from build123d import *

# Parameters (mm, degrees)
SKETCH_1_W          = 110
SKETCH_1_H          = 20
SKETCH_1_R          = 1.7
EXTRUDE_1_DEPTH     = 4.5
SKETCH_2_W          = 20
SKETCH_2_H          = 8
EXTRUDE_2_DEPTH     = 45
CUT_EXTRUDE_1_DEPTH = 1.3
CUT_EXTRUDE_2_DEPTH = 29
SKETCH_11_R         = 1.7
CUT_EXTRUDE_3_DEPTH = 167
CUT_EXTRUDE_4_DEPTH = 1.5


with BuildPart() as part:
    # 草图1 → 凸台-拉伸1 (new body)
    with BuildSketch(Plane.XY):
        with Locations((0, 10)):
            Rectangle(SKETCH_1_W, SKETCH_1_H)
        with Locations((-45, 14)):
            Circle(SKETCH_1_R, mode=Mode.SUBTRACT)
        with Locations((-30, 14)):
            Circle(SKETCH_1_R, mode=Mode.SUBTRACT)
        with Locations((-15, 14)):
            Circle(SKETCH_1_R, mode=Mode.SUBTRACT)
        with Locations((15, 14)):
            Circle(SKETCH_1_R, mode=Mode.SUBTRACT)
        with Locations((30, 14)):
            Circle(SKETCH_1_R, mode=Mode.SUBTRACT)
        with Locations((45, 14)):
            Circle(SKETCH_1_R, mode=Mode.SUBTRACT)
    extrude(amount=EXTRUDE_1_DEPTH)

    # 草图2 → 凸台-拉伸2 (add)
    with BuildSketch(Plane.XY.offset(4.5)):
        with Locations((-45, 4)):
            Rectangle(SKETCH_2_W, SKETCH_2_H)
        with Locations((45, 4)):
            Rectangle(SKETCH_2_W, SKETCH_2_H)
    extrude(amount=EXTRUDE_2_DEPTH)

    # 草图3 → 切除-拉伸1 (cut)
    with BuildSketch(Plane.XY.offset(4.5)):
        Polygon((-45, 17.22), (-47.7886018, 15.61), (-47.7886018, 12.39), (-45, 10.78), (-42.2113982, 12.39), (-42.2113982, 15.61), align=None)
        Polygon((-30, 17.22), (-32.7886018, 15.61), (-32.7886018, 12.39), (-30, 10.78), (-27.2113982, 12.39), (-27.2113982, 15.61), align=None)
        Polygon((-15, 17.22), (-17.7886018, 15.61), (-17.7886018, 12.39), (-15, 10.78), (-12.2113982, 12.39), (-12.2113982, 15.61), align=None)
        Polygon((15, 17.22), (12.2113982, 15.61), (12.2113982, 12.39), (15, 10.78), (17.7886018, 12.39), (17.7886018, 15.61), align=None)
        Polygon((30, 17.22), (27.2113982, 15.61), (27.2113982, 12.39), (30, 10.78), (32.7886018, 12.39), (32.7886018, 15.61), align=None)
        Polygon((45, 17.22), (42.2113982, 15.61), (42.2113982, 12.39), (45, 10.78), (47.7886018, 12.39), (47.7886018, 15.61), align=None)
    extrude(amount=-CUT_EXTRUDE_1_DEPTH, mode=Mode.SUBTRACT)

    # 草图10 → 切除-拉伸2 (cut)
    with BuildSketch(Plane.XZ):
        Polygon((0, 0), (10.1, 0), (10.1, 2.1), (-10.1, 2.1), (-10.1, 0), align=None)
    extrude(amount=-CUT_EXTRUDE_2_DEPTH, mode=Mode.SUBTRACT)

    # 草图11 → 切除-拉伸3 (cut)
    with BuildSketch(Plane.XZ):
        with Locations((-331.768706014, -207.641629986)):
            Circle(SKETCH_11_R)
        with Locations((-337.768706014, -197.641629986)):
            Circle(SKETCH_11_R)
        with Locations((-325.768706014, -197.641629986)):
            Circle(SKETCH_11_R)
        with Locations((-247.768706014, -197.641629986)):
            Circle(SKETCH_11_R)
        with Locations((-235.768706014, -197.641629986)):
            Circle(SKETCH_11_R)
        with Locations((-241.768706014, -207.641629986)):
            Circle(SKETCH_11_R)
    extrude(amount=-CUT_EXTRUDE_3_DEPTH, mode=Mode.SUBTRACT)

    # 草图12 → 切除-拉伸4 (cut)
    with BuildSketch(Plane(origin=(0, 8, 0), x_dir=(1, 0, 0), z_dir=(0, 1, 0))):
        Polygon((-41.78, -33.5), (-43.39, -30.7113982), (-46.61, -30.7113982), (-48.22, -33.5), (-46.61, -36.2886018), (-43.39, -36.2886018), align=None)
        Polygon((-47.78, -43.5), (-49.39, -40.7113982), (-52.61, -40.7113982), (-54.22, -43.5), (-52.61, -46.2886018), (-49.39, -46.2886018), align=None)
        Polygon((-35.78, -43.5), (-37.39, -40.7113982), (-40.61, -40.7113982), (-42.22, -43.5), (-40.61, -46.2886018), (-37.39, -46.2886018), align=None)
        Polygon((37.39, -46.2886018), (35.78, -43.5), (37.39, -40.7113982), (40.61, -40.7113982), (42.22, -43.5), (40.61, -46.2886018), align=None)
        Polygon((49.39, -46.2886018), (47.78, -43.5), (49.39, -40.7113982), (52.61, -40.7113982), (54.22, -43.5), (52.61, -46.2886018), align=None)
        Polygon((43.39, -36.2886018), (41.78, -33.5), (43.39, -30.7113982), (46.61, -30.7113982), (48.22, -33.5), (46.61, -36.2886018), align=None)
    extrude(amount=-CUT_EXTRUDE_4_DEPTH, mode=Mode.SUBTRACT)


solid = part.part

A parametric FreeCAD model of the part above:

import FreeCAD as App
import Part
import Sketcher
Q = App.Units.Quantity

doc = App.newDocument("Part")
body = doc.addObject("PartDesign::Body", "Body")

# Sketch on XY plane
sketch1 = body.newObject("Sketcher::SketchObject", "Sketch")
sketch1.AttachmentSupport = (doc.getObject("XY_Plane"), [""])
sketch1.MapMode = "FlatFace"
sketch1.addGeometry([
    Part.LineSegment(App.Vector(-55, 20, 0), App.Vector(-55, 0, 0)),  # 0
    Part.LineSegment(App.Vector(-55, 0, 0), App.Vector(55, 0, 0)),  # 1
    Part.LineSegment(App.Vector(55, 0, 0), App.Vector(55, 20, 0)),  # 2
    Part.LineSegment(App.Vector(55, 20, 0), App.Vector(-55, 20, 0)),  # 3
    Part.Circle(App.Vector(-45, 14, 0), App.Vector(0, 0, 1), 1.7),  # 4
    Part.Circle(App.Vector(-30, 14, 0), App.Vector(0, 0, 1), 1.7),  # 5
    Part.Circle(App.Vector(-15, 14, 0), App.Vector(0, 0, 1), 1.7),  # 6
    Part.Circle(App.Vector(15, 14, 0), App.Vector(0, 0, 1), 1.7),  # 7
    Part.Circle(App.Vector(30, 14, 0), App.Vector(0, 0, 1), 1.7),  # 8
    Part.Circle(App.Vector(45, 14, 0), App.Vector(0, 0, 1), 1.7),  # 9
], False)
sketch1.addConstraint([
    Sketcher.Constraint("Coincident", 0, 2, 1, 1),
    Sketcher.Constraint("Coincident", 1, 2, 2, 1),
    Sketcher.Constraint("Coincident", 2, 2, 3, 1),
    Sketcher.Constraint("Coincident", 3, 2, 0, 1),
    Sketcher.Constraint("Vertical", 0),
    Sketcher.Constraint("Horizontal", 1),
    Sketcher.Constraint("Vertical", 2),
    Sketcher.Constraint("Horizontal", 3),
    Sketcher.Constraint("Equal", 4, 5),
    Sketcher.Constraint("Equal", 5, 6),
    Sketcher.Constraint("Equal", 6, 7),
    Sketcher.Constraint("Equal", 7, 8),
    Sketcher.Constraint("Equal", 8, 9),
    Sketcher.Constraint("Symmetric", 0, 2, 1, 2, -1, 1),
    Sketcher.Constraint("Symmetric", 6, 3, 7, 3, -2),
    Sketcher.Constraint("Symmetric", 5, 3, 8, 3, -2),
    Sketcher.Constraint("Symmetric", 4, 3, 9, 3, -2),
    Sketcher.Constraint("Horizontal", 4, 3, 5, 3),
    Sketcher.Constraint("Horizontal", 5, 3, 6, 3),
    Sketcher.Constraint("Diameter", 4, 3.4),
    Sketcher.Constraint("DistanceX", 1, 1, 1, 2, 110.0),
    Sketcher.Constraint("DistanceY", 0, 2, 0, 1, 20.0),
    Sketcher.Constraint("DistanceX", 4, 3, -1, 1, 45.0),
    Sketcher.Constraint("DistanceY", -1, 1, 4, 3, 14.0),
    Sketcher.Constraint("DistanceX", 5, 3, -1, 1, 30.0),
    Sketcher.Constraint("DistanceX", 6, 3, -1, 1, 15.0),
])
pad1 = body.newObject("PartDesign::Pad", "Pad")
pad1.Profile = sketch1
pad1.Length = 4.5

# Sketch on XY plane
sketch2 = body.newObject("Sketcher::SketchObject", "Sketch001")
sketch2.AttachmentSupport = (doc.getObject("XY_Plane"), [""])
sketch2.MapMode = "FlatFace"
sketch2.AttachmentOffset = App.Placement(App.Vector(0, 0, 4.5), App.Rotation())
sketch2.addGeometry([
    Part.LineSegment(App.Vector(-55, 8, 0), App.Vector(-55, 0, 0)),  # 0
    Part.LineSegment(App.Vector(-55, 0, 0), App.Vector(-35, 0, 0)),  # 1
    Part.LineSegment(App.Vector(-35, 0, 0), App.Vector(-35, 8, 0)),  # 2
    Part.LineSegment(App.Vector(-35, 8, 0), App.Vector(-55, 8, 0)),  # 3
    Part.LineSegment(App.Vector(35, 8, 0), App.Vector(35, 0, 0)),  # 4
    Part.LineSegment(App.Vector(35, 0, 0), App.Vector(55, 0, 0)),  # 5
    Part.LineSegment(App.Vector(55, 0, 0), App.Vector(55, 8, 0)),  # 6
    Part.LineSegment(App.Vector(55, 8, 0), App.Vector(35, 8, 0)),  # 7
], False)
sketch2.addConstraint([
    Sketcher.Constraint("Coincident", 0, 2, 1, 1),
    Sketcher.Constraint("Coincident", 1, 2, 2, 1),
    Sketcher.Constraint("Coincident", 2, 2, 3, 1),
    Sketcher.Constraint("Coincident", 3, 2, 0, 1),
    Sketcher.Constraint("Coincident", 4, 2, 5, 1),
    Sketcher.Constraint("Coincident", 5, 2, 6, 1),
    Sketcher.Constraint("Coincident", 6, 2, 7, 1),
    Sketcher.Constraint("Coincident", 7, 2, 4, 1),
    Sketcher.Constraint("Vertical", 0),
    Sketcher.Constraint("Horizontal", 1),
    Sketcher.Constraint("Vertical", 2),
    Sketcher.Constraint("Horizontal", 3),
    Sketcher.Constraint("Vertical", 4),
    Sketcher.Constraint("Horizontal", 5),
    Sketcher.Constraint("Vertical", 6),
    Sketcher.Constraint("Horizontal", 7),
    Sketcher.Constraint("Symmetric", 1, 2, 4, 2, -1, 1),
    Sketcher.Constraint("Symmetric", 0, 2, 5, 2, -2),
    Sketcher.Constraint("Horizontal", 3, 2, 6, 2),
    Sketcher.Constraint("DistanceX", 1, 1, 1, 2, 20.0),
    Sketcher.Constraint("DistanceY", 0, 2, 0, 1, 8.0),
    Sketcher.Constraint("DistanceX", 0, 2, -1, 1, 55.0),
])
pad2 = body.newObject("PartDesign::Pad", "Pad001")
pad2.Profile = sketch2
pad2.Length = 45

# Sketch on XY plane
sketch3 = body.newObject("Sketcher::SketchObject", "Sketch002")
sketch3.AttachmentSupport = (doc.getObject("XY_Plane"), [""])
sketch3.MapMode = "FlatFace"
sketch3.AttachmentOffset = App.Placement(App.Vector(0, 0, 4.5), App.Rotation())
sketch3.addGeometry([
    Part.LineSegment(App.Vector(-45, 17.2, 0), App.Vector(-47.8, 15.6, 0)),  # 0
    Part.LineSegment(App.Vector(-47.8, 15.6, 0), App.Vector(-47.8, 12.4, 0)),  # 1
    Part.LineSegment(App.Vector(-47.8, 12.4, 0), App.Vector(-45, 10.8, 0)),  # 2
    Part.LineSegment(App.Vector(-45, 10.8, 0), App.Vector(-42.2, 12.4, 0)),  # 3
    Part.LineSegment(App.Vector(-42.2, 12.4, 0), App.Vector(-42.2, 15.6, 0)),  # 4
    Part.LineSegment(App.Vector(-42.2, 15.6, 0), App.Vector(-45, 17.2, 0)),  # 5
    Part.LineSegment(App.Vector(-30, 17.2, 0), App.Vector(-32.8, 15.6, 0)),  # 6
    Part.LineSegment(App.Vector(-32.8, 15.6, 0), App.Vector(-32.8, 12.4, 0)),  # 7
    Part.LineSegment(App.Vector(-32.8, 12.4, 0), App.Vector(-30, 10.8, 0)),  # 8
    Part.LineSegment(App.Vector(-30, 10.8, 0), App.Vector(-27.2, 12.4, 0)),  # 9
    Part.LineSegment(App.Vector(-27.2, 12.4, 0), App.Vector(-27.2, 15.6, 0)),  # 10
    Part.LineSegment(App.Vector(-27.2, 15.6, 0), App.Vector(-30, 17.2, 0)),  # 11
    Part.LineSegment(App.Vector(-15, 17.2, 0), App.Vector(-17.8, 15.6, 0)),  # 12
    Part.LineSegment(App.Vector(-17.8, 15.6, 0), App.Vector(-17.8, 12.4, 0)),  # 13
    Part.LineSegment(App.Vector(-17.8, 12.4, 0), App.Vector(-15, 10.8, 0)),  # 14
    Part.LineSegment(App.Vector(-15, 10.8, 0), App.Vector(-12.2, 12.4, 0)),  # 15
    Part.LineSegment(App.Vector(-12.2, 12.4, 0), App.Vector(-12.2, 15.6, 0)),  # 16
    Part.LineSegment(App.Vector(-12.2, 15.6, 0), App.Vector(-15, 17.2, 0)),  # 17
    Part.LineSegment(App.Vector(15, 17.2, 0), App.Vector(12.2, 15.6, 0)),  # 18
    Part.LineSegment(App.Vector(12.2, 15.6, 0), App.Vector(12.2, 12.4, 0)),  # 19
    Part.LineSegment(App.Vector(12.2, 12.4, 0), App.Vector(15, 10.8, 0)),  # 20
    Part.LineSegment(App.Vector(15, 10.8, 0), App.Vector(17.8, 12.4, 0)),  # 21
    Part.LineSegment(App.Vector(17.8, 12.4, 0), App.Vector(17.8, 15.6, 0)),  # 22
    Part.LineSegment(App.Vector(17.8, 15.6, 0), App.Vector(15, 17.2, 0)),  # 23
    Part.LineSegment(App.Vector(30, 17.2, 0), App.Vector(27.2, 15.6, 0)),  # 24
    Part.LineSegment(App.Vector(27.2, 15.6, 0), App.Vector(27.2, 12.4, 0)),  # 25
    Part.LineSegment(App.Vector(27.2, 12.4, 0), App.Vector(30, 10.8, 0)),  # 26
    Part.LineSegment(App.Vector(30, 10.8, 0), App.Vector(32.8, 12.4, 0)),  # 27
    Part.LineSegment(App.Vector(32.8, 12.4, 0), App.Vector(32.8, 15.6, 0)),  # 28
    Part.LineSegment(App.Vector(32.8, 15.6, 0), App.Vector(30, 17.2, 0)),  # 29
    Part.LineSegment(App.Vector(45, 17.2, 0), App.Vector(42.2, 15.6, 0)),  # 30
    Part.LineSegment(App.Vector(42.2, 15.6, 0), App.Vector(42.2, 12.4, 0)),  # 31
    Part.LineSegment(App.Vector(42.2, 12.4, 0), App.Vector(45, 10.8, 0)),  # 32
    Part.LineSegment(App.Vector(45, 10.8, 0), App.Vector(47.8, 12.4, 0)),  # 33
    Part.LineSegment(App.Vector(47.8, 12.4, 0), App.Vector(47.8, 15.6, 0)),  # 34
    Part.LineSegment(App.Vector(47.8, 15.6, 0), App.Vector(45, 17.2, 0)),  # 35
], False)
sketch3.addConstraint([
    Sketcher.Constraint("Coincident", 0, 2, 1, 1),
    Sketcher.Constraint("Coincident", 1, 2, 2, 1),
    Sketcher.Constraint("Coincident", 2, 2, 3, 1),
    Sketcher.Constraint("Coincident", 3, 2, 4, 1),
    Sketcher.Constraint("Coincident", 4, 2, 5, 1),
    Sketcher.Constraint("Coincident", 5, 2, 0, 1),
    Sketcher.Constraint("Coincident", 6, 2, 7, 1),
    Sketcher.Constraint("Coincident", 7, 2, 8, 1),
    Sketcher.Constraint("Coincident", 8, 2, 9, 1),
    Sketcher.Constraint("Coincident", 9, 2, 10, 1),
    Sketcher.Constraint("Coincident", 10, 2, 11, 1),
    Sketcher.Constraint("Coincident", 11, 2, 6, 1),
    Sketcher.Constraint("Coincident", 12, 2, 13, 1),
    Sketcher.Constraint("Coincident", 13, 2, 14, 1),
    Sketcher.Constraint("Coincident", 14, 2, 15, 1),
    Sketcher.Constraint("Coincident", 15, 2, 16, 1),
    Sketcher.Constraint("Coincident", 16, 2, 17, 1),
    Sketcher.Constraint("Coincident", 17, 2, 12, 1),
    Sketcher.Constraint("Coincident", 18, 2, 19, 1),
    Sketcher.Constraint("Coincident", 19, 2, 20, 1),
    Sketcher.Constraint("Coincident", 20, 2, 21, 1),
    Sketcher.Constraint("Coincident", 21, 2, 22, 1),
    Sketcher.Constraint("Coincident", 22, 2, 23, 1),
    Sketcher.Constraint("Coincident", 23, 2, 18, 1),
    Sketcher.Constraint("Coincident", 24, 2, 25, 1),
    Sketcher.Constraint("Coincident", 25, 2, 26, 1),
    Sketcher.Constraint("Coincident", 26, 2, 27, 1),
    Sketcher.Constraint("Coincident", 27, 2, 28, 1),
    Sketcher.Constraint("Coincident", 28, 2, 29, 1),
    Sketcher.Constraint("Coincident", 29, 2, 24, 1),
    Sketcher.Constraint("Coincident", 30, 2, 31, 1),
    Sketcher.Constraint("Coincident", 31, 2, 32, 1),
    Sketcher.Constraint("Coincident", 32, 2, 33, 1),
    Sketcher.Constraint("Coincident", 33, 2, 34, 1),
    Sketcher.Constraint("Coincident", 34, 2, 35, 1),
    Sketcher.Constraint("Coincident", 35, 2, 30, 1),
    Sketcher.Constraint("Vertical", 1),
    Sketcher.Constraint("Vertical", 4),
    Sketcher.Constraint("Vertical", 7),
    Sketcher.Constraint("Vertical", 10),
    Sketcher.Constraint("Vertical", 13),
    Sketcher.Constraint("Vertical", 16),
    Sketcher.Constraint("Vertical", 19),
    Sketcher.Constraint("Vertical", 22),
    Sketcher.Constraint("Vertical", 25),
    Sketcher.Constraint("Vertical", 28),
    Sketcher.Constraint("Vertical", 31),
    Sketcher.Constraint("Vertical", 34),
    Sketcher.Constraint("Symmetric", 16, 2, 18, 2, -2),
    Sketcher.Constraint("Symmetric", 14, 2, 20, 2, -2),
    Sketcher.Constraint("Symmetric", 13, 2, 21, 2, -2),
    Sketcher.Constraint("Symmetric", 17, 2, 23, 2, -2),
    Sketcher.Constraint("Symmetric", 10, 2, 24, 2, -2),
    Sketcher.Constraint("Symmetric", 8, 2, 26, 2, -2),
    Sketcher.Constraint("Symmetric", 7, 2, 27, 2, -2),
    Sketcher.Constraint("Symmetric", 11, 2, 29, 2, -2),
    Sketcher.Constraint("Symmetric", 4, 2, 30, 2, -2),
    Sketcher.Constraint("Symmetric", 2, 2, 32, 2, -2),
    Sketcher.Constraint("Symmetric", 1, 2, 33, 2, -2),
    Sketcher.Constraint("Symmetric", 5, 2, 35, 2, -2),
    Sketcher.Constraint("Parallel", 0, 3),
    Sketcher.Constraint("Parallel", 2, 5),
    Sketcher.Constraint("Parallel", 3, 6),
    Sketcher.Constraint("Parallel", 5, 8),
    Sketcher.Constraint("Parallel", 6, 9),
    Sketcher.Constraint("Parallel", 8, 11),
    Sketcher.Constraint("Parallel", 9, 12),
    Sketcher.Constraint("Parallel", 11, 14),
    Sketcher.Constraint("Parallel", 12, 15),
    Sketcher.Constraint("Parallel", 14, 17),
    Sketcher.Constraint("Parallel", 15, 18),
    Sketcher.Constraint("Parallel", 17, 20),
    Sketcher.Constraint("Parallel", 20, 23),
    Sketcher.Constraint("Parallel", 23, 26),
    Sketcher.Constraint("Parallel", 26, 29),
    Sketcher.Constraint("Parallel", 29, 32),
    Sketcher.Constraint("Parallel", 32, 35),
    Sketcher.Constraint("Horizontal", 1, 2, 3, 2),
    Sketcher.Constraint("Horizontal", 0, 2, 4, 2),
    Sketcher.Constraint("Horizontal", 4, 2, 6, 2),
    Sketcher.Constraint("Horizontal", 3, 2, 7, 2),
    Sketcher.Constraint("Horizontal", 2, 2, 8, 2),
    Sketcher.Constraint("Horizontal", 7, 2, 9, 2),
    Sketcher.Constraint("Horizontal", 6, 2, 10, 2),
    Sketcher.Constraint("Horizontal", 10, 2, 12, 2),
    Sketcher.Constraint("Horizontal", 9, 2, 13, 2),
    Sketcher.Constraint("Horizontal", 8, 2, 14, 2),
    Sketcher.Constraint("Horizontal", 13, 2, 15, 2),
    Sketcher.Constraint("Horizontal", 12, 2, 16, 2),
    Sketcher.Constraint("Angle", 0, Q("-150 deg")),
    Sketcher.Constraint("DistanceX", 2, 2, -1, 1, 45.0),
    Sketcher.Constraint("DistanceX", 8, 2, -1, 1, 30.0),
    Sketcher.Constraint("DistanceX", 14, 2, -1, 1, 15.0),
    Sketcher.Constraint("DistanceY", 1, 2, 1, 1, 3.22),
    Sketcher.Constraint("Distance", 0, 3.22),
    Sketcher.Constraint("DistanceY", -1, 1, 0, 2, 15.61),
])
pocket1 = body.newObject("PartDesign::Pocket", "Pocket")
pocket1.Profile = sketch3
pocket1.Length = 1.3

# Sketch on XZ plane
sketch4 = body.newObject("Sketcher::SketchObject", "Sketch003")
sketch4.AttachmentSupport = (doc.getObject("XZ_Plane"), [""])
sketch4.MapMode = "FlatFace"
sketch4.addGeometry([
    Part.LineSegment(App.Vector(10.1, 0, 0), App.Vector(10.1, 2.1, 0)),
    Part.LineSegment(App.Vector(10.1, 2.1, 0), App.Vector(-10.1, 2.1, 0)),
    Part.LineSegment(App.Vector(-10.1, 2.1, 0), App.Vector(-10.1, 0, 0)),
    Part.LineSegment(App.Vector(-10.1, 0, 0), App.Vector(10.1, 0, 0)),
], False)
sketch4.addConstraint([
    Sketcher.Constraint("Coincident", 0, 2, 1, 1),
    Sketcher.Constraint("Coincident", 1, 2, 2, 1),
    Sketcher.Constraint("Coincident", 2, 2, 3, 1),
    Sketcher.Constraint("Coincident", 3, 2, 0, 1),
    Sketcher.Constraint("Vertical", 0),
    Sketcher.Constraint("Horizontal", 1),
    Sketcher.Constraint("Vertical", 2),
    Sketcher.Constraint("Horizontal", 3),
    Sketcher.Constraint("Symmetric", 2, 2, 3, 2, -1, 1),
    Sketcher.Constraint("DistanceX", 1, 2, 1, 1, 20.2),
    Sketcher.Constraint("DistanceY", 0, 1, 0, 2, 2.1),
])
pocket2 = body.newObject("PartDesign::Pocket", "Pocket001")
pocket2.Profile = sketch4
pocket2.Length = 29

# Sketch on XZ plane
sketch5 = body.newObject("Sketcher::SketchObject", "Sketch004")
sketch5.AttachmentSupport = (doc.getObject("XZ_Plane"), [""])
sketch5.MapMode = "FlatFace"
sketch5.addGeometry([
    Part.Circle(App.Vector(-331.8, -207.6, 0), App.Vector(0, 0, 1), 1.7),  # 0
    Part.Circle(App.Vector(-337.8, -197.6, 0), App.Vector(0, 0, 1), 1.7),  # 1
    Part.Circle(App.Vector(-325.8, -197.6, 0), App.Vector(0, 0, 1), 1.7),  # 2
    Part.Circle(App.Vector(-247.8, -197.6, 0), App.Vector(0, 0, 1), 1.7),  # 3
    Part.Circle(App.Vector(-235.8, -197.6, 0), App.Vector(0, 0, 1), 1.7),  # 4
    Part.Circle(App.Vector(-241.8, -207.6, 0), App.Vector(0, 0, 1), 1.7),  # 5
], False)
sketch5.addConstraint([
    Sketcher.Constraint("Equal", 0, 1),
    Sketcher.Constraint("Equal", 1, 2),
    Sketcher.Constraint("Equal", 2, 3),
    Sketcher.Constraint("Equal", 3, 4),
    Sketcher.Constraint("Equal", 4, 5),
    Sketcher.Constraint("Horizontal", 1, 3, 2, 3),
    Sketcher.Constraint("Horizontal", 2, 3, 3, 3),
    Sketcher.Constraint("Horizontal", 3, 3, 4, 3),
    Sketcher.Constraint("Horizontal", 0, 3, 5, 3),
    Sketcher.Constraint("Diameter", 0, 3.4),
    Sketcher.Constraint("DistanceX", 1, 3, 0, 3, 6.0),
    Sketcher.Constraint("DistanceY", 0, 3, 1, 3, 10.0),
    Sketcher.Constraint("DistanceX", 0, 3, 2, 3, 6.0),
    Sketcher.Constraint("DistanceX", 2, 3, 3, 3, 78.0),
    Sketcher.Constraint("DistanceX", 3, 3, 4, 3, 12.0),
    Sketcher.Constraint("DistanceX", 3, 3, 5, 3, 6.0),
    Sketcher.Constraint("DistanceY", 0, 3, -1, 1, 207.64163),
    Sketcher.Constraint("DistanceX", 0, 3, -1, 1, 331.768706),
])
pocket3 = body.newObject("PartDesign::Pocket", "Pocket002")
pocket3.Profile = sketch5
pocket3.Length = 167

# Sketch on XZ plane
sketch6 = body.newObject("Sketcher::SketchObject", "Sketch005")
sketch6.AttachmentSupport = (doc.getObject("XZ_Plane"), [""])
sketch6.MapMode = "FlatFace"
sketch6.AttachmentOffset = App.Placement(App.Vector(0, 0, -8), App.Rotation())
sketch6.addGeometry([
    Part.LineSegment(App.Vector(-41.8, 33.5, 0), App.Vector(-43.4, 30.7, 0)),  # 0
    Part.LineSegment(App.Vector(-43.4, 30.7, 0), App.Vector(-46.6, 30.7, 0)),  # 1
    Part.LineSegment(App.Vector(-46.6, 30.7, 0), App.Vector(-48.2, 33.5, 0)),  # 2
    Part.LineSegment(App.Vector(-48.2, 33.5, 0), App.Vector(-46.6, 36.3, 0)),  # 3
    Part.LineSegment(App.Vector(-46.6, 36.3, 0), App.Vector(-43.4, 36.3, 0)),  # 4
    Part.LineSegment(App.Vector(-43.4, 36.3, 0), App.Vector(-41.8, 33.5, 0)),  # 5
    Part.LineSegment(App.Vector(-47.8, 43.5, 0), App.Vector(-49.4, 40.7, 0)),  # 6
    Part.LineSegment(App.Vector(-49.4, 40.7, 0), App.Vector(-52.6, 40.7, 0)),  # 7
    Part.LineSegment(App.Vector(-52.6, 40.7, 0), App.Vector(-54.2, 43.5, 0)),  # 8
    Part.LineSegment(App.Vector(-54.2, 43.5, 0), App.Vector(-52.6, 46.3, 0)),  # 9
    Part.LineSegment(App.Vector(-52.6, 46.3, 0), App.Vector(-49.4, 46.3, 0)),  # 10
    Part.LineSegment(App.Vector(-49.4, 46.3, 0), App.Vector(-47.8, 43.5, 0)),  # 11
    Part.LineSegment(App.Vector(-35.8, 43.5, 0), App.Vector(-37.4, 40.7, 0)),  # 12
    Part.LineSegment(App.Vector(-37.4, 40.7, 0), App.Vector(-40.6, 40.7, 0)),  # 13
    Part.LineSegment(App.Vector(-40.6, 40.7, 0), App.Vector(-42.2, 43.5, 0)),  # 14
    Part.LineSegment(App.Vector(-42.2, 43.5, 0), App.Vector(-40.6, 46.3, 0)),  # 15
    Part.LineSegment(App.Vector(-40.6, 46.3, 0), App.Vector(-37.4, 46.3, 0)),  # 16
    Part.LineSegment(App.Vector(-37.4, 46.3, 0), App.Vector(-35.8, 43.5, 0)),  # 17
    Part.LineSegment(App.Vector(35.8, 43.5, 0), App.Vector(37.4, 46.3, 0)),  # 18
    Part.LineSegment(App.Vector(37.4, 46.3, 0), App.Vector(40.6, 46.3, 0)),  # 19
    Part.LineSegment(App.Vector(40.6, 46.3, 0), App.Vector(42.2, 43.5, 0)),  # 20
    Part.LineSegment(App.Vector(42.2, 43.5, 0), App.Vector(40.6, 40.7, 0)),  # 21
    Part.LineSegment(App.Vector(40.6, 40.7, 0), App.Vector(37.4, 40.7, 0)),  # 22
    Part.LineSegment(App.Vector(37.4, 40.7, 0), App.Vector(35.8, 43.5, 0)),  # 23
    Part.LineSegment(App.Vector(47.8, 43.5, 0), App.Vector(49.4, 46.3, 0)),  # 24
    Part.LineSegment(App.Vector(49.4, 46.3, 0), App.Vector(52.6, 46.3, 0)),  # 25
    Part.LineSegment(App.Vector(52.6, 46.3, 0), App.Vector(54.2, 43.5, 0)),  # 26
    Part.LineSegment(App.Vector(54.2, 43.5, 0), App.Vector(52.6, 40.7, 0)),  # 27
    Part.LineSegment(App.Vector(52.6, 40.7, 0), App.Vector(49.4, 40.7, 0)),  # 28
    Part.LineSegment(App.Vector(49.4, 40.7, 0), App.Vector(47.8, 43.5, 0)),  # 29
    Part.LineSegment(App.Vector(41.8, 33.5, 0), App.Vector(43.4, 36.3, 0)),  # 30
    Part.LineSegment(App.Vector(43.4, 36.3, 0), App.Vector(46.6, 36.3, 0)),  # 31
    Part.LineSegment(App.Vector(46.6, 36.3, 0), App.Vector(48.2, 33.5, 0)),  # 32
    Part.LineSegment(App.Vector(48.2, 33.5, 0), App.Vector(46.6, 30.7, 0)),  # 33
    Part.LineSegment(App.Vector(46.6, 30.7, 0), App.Vector(43.4, 30.7, 0)),  # 34
    Part.LineSegment(App.Vector(43.4, 30.7, 0), App.Vector(41.8, 33.5, 0)),  # 35
], False)
sketch6.addConstraint([
    Sketcher.Constraint("Coincident", 0, 2, 1, 1),
    Sketcher.Constraint("Coincident", 1, 2, 2, 1),
    Sketcher.Constraint("Coincident", 2, 2, 3, 1),
    Sketcher.Constraint("Coincident", 3, 2, 4, 1),
    Sketcher.Constraint("Coincident", 4, 2, 5, 1),
    Sketcher.Constraint("Coincident", 5, 2, 0, 1),
    Sketcher.Constraint("Coincident", 6, 2, 7, 1),
    Sketcher.Constraint("Coincident", 7, 2, 8, 1),
    Sketcher.Constraint("Coincident", 8, 2, 9, 1),
    Sketcher.Constraint("Coincident", 9, 2, 10, 1),
    Sketcher.Constraint("Coincident", 10, 2, 11, 1),
    Sketcher.Constraint("Coincident", 11, 2, 6, 1),
    Sketcher.Constraint("Coincident", 12, 2, 13, 1),
    Sketcher.Constraint("Coincident", 13, 2, 14, 1),
    Sketcher.Constraint("Coincident", 14, 2, 15, 1),
    Sketcher.Constraint("Coincident", 15, 2, 16, 1),
    Sketcher.Constraint("Coincident", 16, 2, 17, 1),
    Sketcher.Constraint("Coincident", 17, 2, 12, 1),
    Sketcher.Constraint("Coincident", 18, 2, 19, 1),
    Sketcher.Constraint("Coincident", 19, 2, 20, 1),
    Sketcher.Constraint("Coincident", 20, 2, 21, 1),
    Sketcher.Constraint("Coincident", 21, 2, 22, 1),
    Sketcher.Constraint("Coincident", 22, 2, 23, 1),
    Sketcher.Constraint("Coincident", 23, 2, 18, 1),
    Sketcher.Constraint("Coincident", 24, 2, 25, 1),
    Sketcher.Constraint("Coincident", 25, 2, 26, 1),
    Sketcher.Constraint("Coincident", 26, 2, 27, 1),
    Sketcher.Constraint("Coincident", 27, 2, 28, 1),
    Sketcher.Constraint("Coincident", 28, 2, 29, 1),
    Sketcher.Constraint("Coincident", 29, 2, 24, 1),
    Sketcher.Constraint("Coincident", 30, 2, 31, 1),
    Sketcher.Constraint("Coincident", 31, 2, 32, 1),
    Sketcher.Constraint("Coincident", 32, 2, 33, 1),
    Sketcher.Constraint("Coincident", 33, 2, 34, 1),
    Sketcher.Constraint("Coincident", 34, 2, 35, 1),
    Sketcher.Constraint("Coincident", 35, 2, 30, 1),
    Sketcher.Constraint("Horizontal", 1),
    Sketcher.Constraint("Horizontal", 4),
    Sketcher.Constraint("Horizontal", 7),
    Sketcher.Constraint("Horizontal", 10),
    Sketcher.Constraint("Horizontal", 13),
    Sketcher.Constraint("Horizontal", 16),
    Sketcher.Constraint("Horizontal", 19),
    Sketcher.Constraint("Horizontal", 22),
    Sketcher.Constraint("Horizontal", 25),
    Sketcher.Constraint("Horizontal", 28),
    Sketcher.Constraint("Horizontal", 31),
    Sketcher.Constraint("Horizontal", 34),
    Sketcher.Constraint("Symmetric", 16, 2, 18, 2, -2),
    Sketcher.Constraint("Symmetric", 14, 2, 20, 2, -2),
    Sketcher.Constraint("Symmetric", 13, 2, 21, 2, -2),
    Sketcher.Constraint("Symmetric", 17, 2, 23, 2, -2),
    Sketcher.Constraint("Symmetric", 10, 2, 24, 2, -2),
    Sketcher.Constraint("Symmetric", 8, 2, 26, 2, -2),
    Sketcher.Constraint("Symmetric", 7, 2, 27, 2, -2),
    Sketcher.Constraint("Symmetric", 11, 2, 29, 2, -2),
    Sketcher.Constraint("Symmetric", 4, 2, 30, 2, -2),
    Sketcher.Constraint("Symmetric", 2, 2, 32, 2, -2),
    Sketcher.Constraint("Symmetric", 1, 2, 33, 2, -2),
    Sketcher.Constraint("Symmetric", 5, 2, 35, 2, -2),
    Sketcher.Constraint("Parallel", 0, 3),
    Sketcher.Constraint("Parallel", 2, 5),
    Sketcher.Constraint("Parallel", 3, 6),
    Sketcher.Constraint("Parallel", 5, 8),
    Sketcher.Constraint("Parallel", 6, 9),
    Sketcher.Constraint("Parallel", 8, 11),
    Sketcher.Constraint("Parallel", 9, 12),
    Sketcher.Constraint("Parallel", 11, 14),
    Sketcher.Constraint("Parallel", 12, 15),
    Sketcher.Constraint("Parallel", 14, 17),
    Sketcher.Constraint("Parallel", 15, 18),
    Sketcher.Constraint("Parallel", 17, 20),
    Sketcher.Constraint("Parallel", 20, 23),
    Sketcher.Constraint("Parallel", 23, 26),
    Sketcher.Constraint("Parallel", 26, 29),
    Sketcher.Constraint("Parallel", 29, 32),
    Sketcher.Constraint("Parallel", 32, 35),
    Sketcher.Constraint("Horizontal", 2, 2, 5, 2),
    Sketcher.Constraint("Horizontal", 8, 2, 11, 2),
    Sketcher.Constraint("Horizontal", 7, 2, 12, 2),
    Sketcher.Constraint("Horizontal", 11, 2, 14, 2),
    Sketcher.Constraint("Horizontal", 10, 2, 15, 2),
    Sketcher.Constraint("Horizontal", 14, 2, 17, 2),
    Sketcher.Constraint("Vertical", 1, 2, 3, 2),
    Sketcher.Constraint("Vertical", 7, 2, 9, 2),
    Sketcher.Constraint("Equal", 4, 7),
    Sketcher.Constraint("Equal", 10, 13),
    Sketcher.Constraint("Equal", 5, 6),
    Sketcher.Constraint("Angle", 0, Q("-120 deg")),
    Sketcher.Constraint("DistanceX", 6, 2, 4, 2, 6.0),
    Sketcher.Constraint("DistanceY", 1, 2, 6, 2, 10.0),
    Sketcher.Constraint("DistanceX", 4, 2, 12, 2, 6.0),
    Sketcher.Constraint("DistanceX", 15, 2, 18, 2, 78.0),
    Sketcher.Constraint("DistanceX", 1, 2, 1, 1, 3.22),
    Sketcher.Constraint("DistanceY", -1, 1, 2, 2, 33.5),
    Sketcher.Constraint("Distance", 0, 3.22),
])
pocket4 = body.newObject("PartDesign::Pocket", "Pocket003")
pocket4.Profile = sketch6
pocket4.Length = 1.5
pocket4.Reversed = True

doc.recompute()
